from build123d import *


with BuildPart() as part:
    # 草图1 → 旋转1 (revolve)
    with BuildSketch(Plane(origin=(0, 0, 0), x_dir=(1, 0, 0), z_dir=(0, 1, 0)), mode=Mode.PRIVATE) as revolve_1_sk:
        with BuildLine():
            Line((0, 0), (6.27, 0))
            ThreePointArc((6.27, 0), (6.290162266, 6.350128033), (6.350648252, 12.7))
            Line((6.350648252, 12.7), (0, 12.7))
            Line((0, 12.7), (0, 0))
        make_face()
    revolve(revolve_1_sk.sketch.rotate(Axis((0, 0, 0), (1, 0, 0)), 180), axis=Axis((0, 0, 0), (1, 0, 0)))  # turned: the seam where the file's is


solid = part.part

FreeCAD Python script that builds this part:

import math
import FreeCAD as App
import Part
import Sketcher

V = App.Vector
Q = App.Units.Quantity

doc = App.newDocument("Part")
body = doc.addObject("PartDesign::Body", "Body")

sketch1 = body.newObject("Sketcher::SketchObject", "Sketch")
sketch1.AttachmentSupport = (doc.getObject("XZ_Plane"), [""])
sketch1.MapMode = "FlatFace"
sketch1.addGeometry([
    Part.LineSegment(V(0, 0, 0), V(6.27, 0, 0)),
    Part.ArcOfCircle(Part.Circle(V(1006.269988, 0, 0), V(0, 0, 1), 999.999988), math.radians(180), math.radians(180.727676)),
    Part.LineSegment(V(6.350648, -12.7, 0), V(0, -12.7, 0)),
    Part.LineSegment(V(0, -12.7, 0), V(0, 0, 0)),
], False)
sketch1.addConstraint([
    Sketcher.Constraint("Coincident", 0, 2, 1, 1),
    Sketcher.Constraint("Coincident", 1, 2, 2, 1),
    Sketcher.Constraint("Coincident", 2, 2, 3, 1),
    Sketcher.Constraint("Coincident", 3, 2, 0, 1),
    Sketcher.Constraint("Horizontal", 0),
    Sketcher.Constraint("Horizontal", 2),
    Sketcher.Constraint("Vertical", 3),
    Sketcher.Constraint("Coincident", 3, 2, -1, 1),
    Sketcher.Constraint("PointOnObject", 1, 3, -1),
    Sketcher.Constraint("DistanceY", 3, 1, 3, 2, Q("0.5 in")),
    Sketcher.Constraint("Radius", 1, 999.999988),
    Sketcher.Constraint("DistanceX", 0, 1, 0, 2, 6.27),
])
revolution = body.newObject("PartDesign::Revolution", "Revolution")
revolution.Profile = sketch1
revolution.ReferenceAxis = (sketch1, ["H_Axis"])
revolution.Angle = 360

doc.recompute()
